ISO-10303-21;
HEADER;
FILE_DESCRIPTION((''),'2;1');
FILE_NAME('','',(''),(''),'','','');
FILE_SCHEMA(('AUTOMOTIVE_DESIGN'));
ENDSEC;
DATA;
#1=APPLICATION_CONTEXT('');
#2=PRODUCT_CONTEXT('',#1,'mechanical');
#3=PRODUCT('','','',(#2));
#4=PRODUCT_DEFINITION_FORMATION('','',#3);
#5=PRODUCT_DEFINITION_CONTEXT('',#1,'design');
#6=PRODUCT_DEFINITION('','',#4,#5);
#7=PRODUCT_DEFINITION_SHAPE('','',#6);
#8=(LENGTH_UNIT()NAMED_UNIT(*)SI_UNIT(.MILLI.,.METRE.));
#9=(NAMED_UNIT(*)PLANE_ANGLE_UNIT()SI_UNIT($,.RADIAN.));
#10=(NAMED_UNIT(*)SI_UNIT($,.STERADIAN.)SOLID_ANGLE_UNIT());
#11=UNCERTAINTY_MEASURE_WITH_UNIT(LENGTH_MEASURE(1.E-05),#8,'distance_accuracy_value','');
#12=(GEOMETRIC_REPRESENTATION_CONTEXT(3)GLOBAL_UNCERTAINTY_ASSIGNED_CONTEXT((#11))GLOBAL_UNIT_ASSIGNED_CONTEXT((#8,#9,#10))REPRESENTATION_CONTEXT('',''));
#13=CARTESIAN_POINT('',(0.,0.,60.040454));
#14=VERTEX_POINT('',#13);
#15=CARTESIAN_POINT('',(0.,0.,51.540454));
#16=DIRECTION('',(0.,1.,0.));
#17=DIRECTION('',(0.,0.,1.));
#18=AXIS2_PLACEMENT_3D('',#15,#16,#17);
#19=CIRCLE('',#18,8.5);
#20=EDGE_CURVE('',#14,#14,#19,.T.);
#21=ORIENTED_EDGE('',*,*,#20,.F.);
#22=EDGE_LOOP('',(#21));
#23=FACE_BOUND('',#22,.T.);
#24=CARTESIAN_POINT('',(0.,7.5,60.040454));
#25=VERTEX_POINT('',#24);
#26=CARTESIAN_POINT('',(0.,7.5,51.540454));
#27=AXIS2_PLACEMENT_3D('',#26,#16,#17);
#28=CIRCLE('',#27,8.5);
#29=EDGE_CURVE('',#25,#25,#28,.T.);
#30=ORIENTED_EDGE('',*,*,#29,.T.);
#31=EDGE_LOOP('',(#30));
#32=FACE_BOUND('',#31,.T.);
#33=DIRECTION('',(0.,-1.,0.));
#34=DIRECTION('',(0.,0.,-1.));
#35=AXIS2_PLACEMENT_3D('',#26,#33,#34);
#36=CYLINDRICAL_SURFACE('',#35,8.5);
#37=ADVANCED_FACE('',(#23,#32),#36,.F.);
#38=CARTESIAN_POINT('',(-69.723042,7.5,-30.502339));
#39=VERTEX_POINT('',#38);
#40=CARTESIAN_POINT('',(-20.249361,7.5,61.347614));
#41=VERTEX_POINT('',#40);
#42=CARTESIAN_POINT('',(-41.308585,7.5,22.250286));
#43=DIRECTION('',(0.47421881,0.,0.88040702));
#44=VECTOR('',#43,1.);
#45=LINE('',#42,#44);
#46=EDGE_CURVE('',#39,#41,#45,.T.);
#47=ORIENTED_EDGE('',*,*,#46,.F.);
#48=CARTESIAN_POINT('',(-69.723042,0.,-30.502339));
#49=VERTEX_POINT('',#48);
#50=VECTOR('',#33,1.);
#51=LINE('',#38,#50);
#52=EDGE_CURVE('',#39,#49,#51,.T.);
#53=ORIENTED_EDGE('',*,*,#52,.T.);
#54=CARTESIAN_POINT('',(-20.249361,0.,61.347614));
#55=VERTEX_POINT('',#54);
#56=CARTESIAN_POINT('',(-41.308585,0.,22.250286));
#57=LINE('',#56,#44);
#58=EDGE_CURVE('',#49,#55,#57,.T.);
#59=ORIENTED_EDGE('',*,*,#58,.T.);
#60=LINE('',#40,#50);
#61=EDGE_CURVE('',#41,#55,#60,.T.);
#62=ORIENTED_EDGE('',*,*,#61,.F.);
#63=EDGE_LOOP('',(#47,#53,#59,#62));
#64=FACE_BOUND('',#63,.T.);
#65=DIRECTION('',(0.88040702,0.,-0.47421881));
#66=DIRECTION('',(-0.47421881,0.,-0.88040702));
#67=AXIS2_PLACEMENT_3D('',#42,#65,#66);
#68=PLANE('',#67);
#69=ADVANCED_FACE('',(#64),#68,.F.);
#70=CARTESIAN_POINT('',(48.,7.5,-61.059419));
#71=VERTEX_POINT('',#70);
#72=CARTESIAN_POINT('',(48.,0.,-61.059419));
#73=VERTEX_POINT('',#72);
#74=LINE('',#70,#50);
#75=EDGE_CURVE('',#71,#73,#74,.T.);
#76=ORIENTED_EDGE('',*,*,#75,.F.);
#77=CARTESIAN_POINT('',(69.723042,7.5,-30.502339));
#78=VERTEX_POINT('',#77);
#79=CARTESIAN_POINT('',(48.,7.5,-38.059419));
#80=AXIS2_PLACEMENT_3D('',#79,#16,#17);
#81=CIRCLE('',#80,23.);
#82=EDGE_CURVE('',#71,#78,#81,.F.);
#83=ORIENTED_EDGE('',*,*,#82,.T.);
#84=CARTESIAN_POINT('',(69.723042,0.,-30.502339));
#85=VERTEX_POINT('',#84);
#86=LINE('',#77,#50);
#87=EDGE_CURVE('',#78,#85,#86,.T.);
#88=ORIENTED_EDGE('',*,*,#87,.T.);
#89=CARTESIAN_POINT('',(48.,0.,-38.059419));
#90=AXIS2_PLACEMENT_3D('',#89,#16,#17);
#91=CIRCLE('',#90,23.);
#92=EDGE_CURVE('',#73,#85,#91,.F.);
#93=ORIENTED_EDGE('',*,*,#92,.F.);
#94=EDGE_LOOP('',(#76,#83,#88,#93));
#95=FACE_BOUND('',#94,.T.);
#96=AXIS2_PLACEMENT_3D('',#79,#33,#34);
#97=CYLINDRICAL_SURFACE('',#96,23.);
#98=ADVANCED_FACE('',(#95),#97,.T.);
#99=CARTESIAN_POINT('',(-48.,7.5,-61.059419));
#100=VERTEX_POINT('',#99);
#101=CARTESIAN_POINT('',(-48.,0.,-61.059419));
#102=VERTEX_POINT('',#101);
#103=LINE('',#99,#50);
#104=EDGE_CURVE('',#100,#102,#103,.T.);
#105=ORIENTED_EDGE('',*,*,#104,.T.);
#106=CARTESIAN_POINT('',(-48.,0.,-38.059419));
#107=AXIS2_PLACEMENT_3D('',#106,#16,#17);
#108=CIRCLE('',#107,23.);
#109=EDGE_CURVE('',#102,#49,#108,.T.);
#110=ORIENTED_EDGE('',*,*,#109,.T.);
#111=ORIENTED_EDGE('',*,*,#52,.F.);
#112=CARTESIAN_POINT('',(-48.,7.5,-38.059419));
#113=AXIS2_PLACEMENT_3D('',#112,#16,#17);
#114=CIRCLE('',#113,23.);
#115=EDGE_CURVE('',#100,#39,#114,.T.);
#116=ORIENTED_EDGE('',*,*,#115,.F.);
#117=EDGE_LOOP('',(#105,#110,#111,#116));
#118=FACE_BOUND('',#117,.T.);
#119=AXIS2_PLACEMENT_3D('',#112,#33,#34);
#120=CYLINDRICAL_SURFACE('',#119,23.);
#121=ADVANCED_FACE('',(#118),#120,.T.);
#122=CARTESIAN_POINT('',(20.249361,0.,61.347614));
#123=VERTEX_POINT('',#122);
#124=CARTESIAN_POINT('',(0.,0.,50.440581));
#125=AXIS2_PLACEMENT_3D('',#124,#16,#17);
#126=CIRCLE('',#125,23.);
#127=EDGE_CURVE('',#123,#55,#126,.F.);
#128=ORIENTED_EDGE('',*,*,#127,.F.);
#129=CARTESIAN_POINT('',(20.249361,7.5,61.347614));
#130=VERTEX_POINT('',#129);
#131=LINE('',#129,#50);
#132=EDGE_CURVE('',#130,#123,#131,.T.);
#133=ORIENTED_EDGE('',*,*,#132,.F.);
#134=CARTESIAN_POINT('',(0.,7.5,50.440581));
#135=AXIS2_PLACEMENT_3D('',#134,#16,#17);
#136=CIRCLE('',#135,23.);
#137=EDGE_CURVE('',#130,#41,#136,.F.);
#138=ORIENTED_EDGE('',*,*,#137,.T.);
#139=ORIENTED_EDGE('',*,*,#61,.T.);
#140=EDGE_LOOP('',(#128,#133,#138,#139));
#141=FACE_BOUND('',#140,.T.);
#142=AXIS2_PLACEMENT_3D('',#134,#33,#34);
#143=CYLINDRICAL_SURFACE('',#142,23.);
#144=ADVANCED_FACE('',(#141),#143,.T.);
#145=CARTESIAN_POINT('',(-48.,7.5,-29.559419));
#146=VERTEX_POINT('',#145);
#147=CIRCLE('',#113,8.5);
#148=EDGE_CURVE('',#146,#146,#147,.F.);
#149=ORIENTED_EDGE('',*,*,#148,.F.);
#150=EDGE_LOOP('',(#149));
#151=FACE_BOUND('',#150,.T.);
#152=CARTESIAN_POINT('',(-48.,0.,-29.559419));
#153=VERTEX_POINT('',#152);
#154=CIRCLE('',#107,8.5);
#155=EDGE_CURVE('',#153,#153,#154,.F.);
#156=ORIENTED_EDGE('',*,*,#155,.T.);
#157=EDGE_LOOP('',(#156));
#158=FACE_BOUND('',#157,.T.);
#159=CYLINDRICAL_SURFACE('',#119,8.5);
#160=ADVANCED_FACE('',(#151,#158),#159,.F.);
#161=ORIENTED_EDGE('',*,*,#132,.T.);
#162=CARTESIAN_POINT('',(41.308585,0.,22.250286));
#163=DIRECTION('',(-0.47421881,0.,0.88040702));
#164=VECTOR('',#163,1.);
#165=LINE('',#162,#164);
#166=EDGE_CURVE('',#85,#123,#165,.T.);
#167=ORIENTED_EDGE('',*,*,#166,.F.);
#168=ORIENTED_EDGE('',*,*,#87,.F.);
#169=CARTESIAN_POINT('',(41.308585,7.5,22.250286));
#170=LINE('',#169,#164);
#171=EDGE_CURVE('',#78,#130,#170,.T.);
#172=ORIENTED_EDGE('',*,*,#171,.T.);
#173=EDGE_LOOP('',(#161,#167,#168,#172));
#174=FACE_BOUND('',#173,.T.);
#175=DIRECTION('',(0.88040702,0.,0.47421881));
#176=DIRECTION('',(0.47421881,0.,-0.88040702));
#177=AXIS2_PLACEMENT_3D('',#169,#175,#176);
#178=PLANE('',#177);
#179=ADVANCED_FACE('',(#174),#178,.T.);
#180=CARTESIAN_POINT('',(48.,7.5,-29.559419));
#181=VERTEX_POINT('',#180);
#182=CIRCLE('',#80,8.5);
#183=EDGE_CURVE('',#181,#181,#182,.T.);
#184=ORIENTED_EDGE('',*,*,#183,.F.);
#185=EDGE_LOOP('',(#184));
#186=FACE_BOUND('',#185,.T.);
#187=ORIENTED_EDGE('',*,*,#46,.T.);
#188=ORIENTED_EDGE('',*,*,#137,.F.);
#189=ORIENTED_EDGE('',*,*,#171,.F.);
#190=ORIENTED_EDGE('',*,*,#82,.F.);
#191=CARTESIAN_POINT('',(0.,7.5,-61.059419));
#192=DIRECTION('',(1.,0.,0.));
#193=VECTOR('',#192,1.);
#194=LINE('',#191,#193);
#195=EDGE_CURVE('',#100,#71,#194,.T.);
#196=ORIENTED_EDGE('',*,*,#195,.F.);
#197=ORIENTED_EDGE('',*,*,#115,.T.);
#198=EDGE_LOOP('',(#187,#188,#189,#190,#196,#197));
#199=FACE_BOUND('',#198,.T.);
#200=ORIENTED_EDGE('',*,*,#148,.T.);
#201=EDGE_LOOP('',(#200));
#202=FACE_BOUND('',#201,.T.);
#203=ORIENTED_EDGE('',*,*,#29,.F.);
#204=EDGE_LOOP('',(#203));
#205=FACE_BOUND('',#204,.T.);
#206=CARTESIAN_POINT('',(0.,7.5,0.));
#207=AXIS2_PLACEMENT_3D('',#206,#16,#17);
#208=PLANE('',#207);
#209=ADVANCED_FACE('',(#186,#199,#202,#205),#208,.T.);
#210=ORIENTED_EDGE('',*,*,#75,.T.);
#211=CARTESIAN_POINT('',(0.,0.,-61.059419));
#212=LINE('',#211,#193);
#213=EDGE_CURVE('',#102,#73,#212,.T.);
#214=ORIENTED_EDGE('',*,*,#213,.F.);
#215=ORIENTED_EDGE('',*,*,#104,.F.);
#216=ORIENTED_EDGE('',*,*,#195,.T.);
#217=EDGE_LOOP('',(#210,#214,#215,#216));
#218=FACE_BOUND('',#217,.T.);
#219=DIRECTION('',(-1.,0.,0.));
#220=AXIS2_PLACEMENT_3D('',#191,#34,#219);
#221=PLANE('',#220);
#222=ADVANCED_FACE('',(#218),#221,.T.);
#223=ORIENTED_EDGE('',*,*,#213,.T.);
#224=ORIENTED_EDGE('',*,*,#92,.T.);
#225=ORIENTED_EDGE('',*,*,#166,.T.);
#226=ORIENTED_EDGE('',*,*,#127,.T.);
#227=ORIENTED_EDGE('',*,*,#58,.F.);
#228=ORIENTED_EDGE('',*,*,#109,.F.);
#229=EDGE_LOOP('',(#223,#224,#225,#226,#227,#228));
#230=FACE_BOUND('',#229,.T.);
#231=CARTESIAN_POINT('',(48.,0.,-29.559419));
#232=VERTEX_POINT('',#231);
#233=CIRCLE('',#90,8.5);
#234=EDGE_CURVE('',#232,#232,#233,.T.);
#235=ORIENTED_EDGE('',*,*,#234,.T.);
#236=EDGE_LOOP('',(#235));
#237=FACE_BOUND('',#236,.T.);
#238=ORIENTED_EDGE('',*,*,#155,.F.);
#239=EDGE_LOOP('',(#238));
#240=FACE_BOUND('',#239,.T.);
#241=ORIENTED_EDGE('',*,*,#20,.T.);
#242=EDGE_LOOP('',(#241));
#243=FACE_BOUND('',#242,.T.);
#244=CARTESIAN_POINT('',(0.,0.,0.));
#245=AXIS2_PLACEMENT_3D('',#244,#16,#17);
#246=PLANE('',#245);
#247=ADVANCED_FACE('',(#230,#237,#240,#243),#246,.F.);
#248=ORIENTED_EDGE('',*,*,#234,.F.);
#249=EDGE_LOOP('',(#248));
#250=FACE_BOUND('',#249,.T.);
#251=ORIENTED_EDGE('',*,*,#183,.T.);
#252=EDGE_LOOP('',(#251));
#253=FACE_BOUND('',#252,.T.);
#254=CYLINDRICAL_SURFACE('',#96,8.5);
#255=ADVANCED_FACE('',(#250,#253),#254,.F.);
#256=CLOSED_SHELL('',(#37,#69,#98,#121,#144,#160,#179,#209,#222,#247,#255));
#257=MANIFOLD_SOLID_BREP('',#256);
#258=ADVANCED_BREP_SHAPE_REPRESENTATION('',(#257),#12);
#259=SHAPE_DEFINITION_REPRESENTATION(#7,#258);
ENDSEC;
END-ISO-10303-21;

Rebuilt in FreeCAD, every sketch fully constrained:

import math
import FreeCAD as App
import Part
import Sketcher
Q = App.Units.Quantity

doc = App.newDocument("Part")
body = doc.addObject("PartDesign::Body", "Body")

# Sketch on XZ plane
sketch1 = body.newObject("Sketcher::SketchObject", "Sketch")
sketch1.AttachmentSupport = (doc.getObject("XZ_Plane"), [""])
sketch1.MapMode = "FlatFace"
sketch1.addGeometry([
    Part.ArcOfCircle(Part.Circle(App.Vector(-48, -38, 0), App.Vector(0, 0, 1), 23), math.radians(161), math.radians(270)),  # 0
    Part.LineSegment(App.Vector(-70, -31, 0), App.Vector(-20, 61, 0)),  # 1
    Part.ArcOfCircle(Part.Circle(App.Vector(0, 50, 0), App.Vector(0, 0, 1), 23), math.radians(90), math.radians(152)),  # 2
    Part.ArcOfCircle(Part.Circle(App.Vector(0, 50, 0), App.Vector(0, 0, 1), 23), math.radians(28), math.radians(90)),  # 3
    Part.LineSegment(App.Vector(20, 61, 0), App.Vector(70, -31, 0)),  # 4
    Part.ArcOfCircle(Part.Circle(App.Vector(48, -38, 0), App.Vector(0, 0, 1), 23), math.radians(-90), math.radians(19)),  # 5
    Part.LineSegment(App.Vector(48, -61, 0), App.Vector(-48, -61, 0)),  # 6
    Part.ArcOfCircle(Part.Circle(App.Vector(0, 52, 0), App.Vector(0, 0, 1), 8), math.radians(90), math.radians(270)),  # 7
    Part.ArcOfCircle(Part.Circle(App.Vector(0, 52, 0), App.Vector(0, 0, 1), 8), math.radians(-90), math.radians(0)),  # 8
    Part.ArcOfCircle(Part.Circle(App.Vector(0, 52, 0), App.Vector(0, 0, 1), 8), math.radians(0), math.radians(90)),  # 9
    Part.Circle(App.Vector(-48, -38, 0), App.Vector(0, 0, 1), 8),  # 10
    Part.Circle(App.Vector(48, -38, 0), App.Vector(0, 0, 1), 8),  # 11
], False)
sketch1.addConstraint([
    Sketcher.Constraint("Coincident", 0, 1, 1, 1),
    Sketcher.Constraint("Tangent", 1, 2, 2, 2),
    Sketcher.Constraint("Tangent", 2, 1, 3, 2),
    Sketcher.Constraint("Tangent", 3, 1, 4, 1),
    Sketcher.Constraint("Coincident", 4, 2, 5, 2),
    Sketcher.Constraint("Tangent", 5, 1, 6, 1),
    Sketcher.Constraint("Tangent", 6, 2, 0, 2),
    Sketcher.Constraint("Tangent", 7, 2, 8, 1),
    Sketcher.Constraint("Tangent", 8, 2, 9, 1),
    Sketcher.Constraint("Tangent", 9, 2, 7, 1),
    Sketcher.Constraint("Horizontal", 6),
    Sketcher.Constraint("Coincident", 10, 3, 0, 3),
    Sketcher.Constraint("Coincident", 11, 3, 5, 3),
    Sketcher.Constraint("Equal", 0, 2),
    Sketcher.Constraint("Equal", 2, 3),
    Sketcher.Constraint("Equal", 3, 5),
    Sketcher.Constraint("Equal", 9, 10),
    Sketcher.Constraint("Equal", 10, 11),
    Sketcher.Constraint("Symmetric", 1, 2, 3, 1, -2),
    Sketcher.Constraint("PointOnObject", 7, 3, -2),
    Sketcher.Constraint("PointOnObject", 2, 1, -2),
    Sketcher.Constraint("PointOnObject", 7, 2, -2),
    Sketcher.Constraint("PointOnObject", 9, 2, -2),
    Sketcher.Constraint("Horizontal", 0, 1, 4, 2),
    Sketcher.Constraint("Horizontal", 9, 3, 8, 2),
    Sketcher.Constraint("Diameter", 10, Q("17 mm")),
    Sketcher.Constraint("Radius", 0, Q("23 mm")),
    Sketcher.Constraint("DistanceX", 6, 2, 6, 1, Q("96 mm")),
    Sketcher.Constraint("DistanceY", 0, 3, 2, 3, Q("88.5 mm")),
    Sketcher.Constraint("DistanceY", 0, 3, -1, 1, Q("38.059419 mm")),
    Sketcher.Constraint("DistanceY", 0, 1, -1, 1, Q("30.502339 mm")),
    Sketcher.Constraint("DistanceY", 7, 3, 1, 2, Q("9.80716 mm")),
])
pad1 = body.newObject("PartDesign::Pad", "Pad")
pad1.Profile = sketch1
pad1.Length = 7.5
pad1.Reversed = True

doc.recompute()
